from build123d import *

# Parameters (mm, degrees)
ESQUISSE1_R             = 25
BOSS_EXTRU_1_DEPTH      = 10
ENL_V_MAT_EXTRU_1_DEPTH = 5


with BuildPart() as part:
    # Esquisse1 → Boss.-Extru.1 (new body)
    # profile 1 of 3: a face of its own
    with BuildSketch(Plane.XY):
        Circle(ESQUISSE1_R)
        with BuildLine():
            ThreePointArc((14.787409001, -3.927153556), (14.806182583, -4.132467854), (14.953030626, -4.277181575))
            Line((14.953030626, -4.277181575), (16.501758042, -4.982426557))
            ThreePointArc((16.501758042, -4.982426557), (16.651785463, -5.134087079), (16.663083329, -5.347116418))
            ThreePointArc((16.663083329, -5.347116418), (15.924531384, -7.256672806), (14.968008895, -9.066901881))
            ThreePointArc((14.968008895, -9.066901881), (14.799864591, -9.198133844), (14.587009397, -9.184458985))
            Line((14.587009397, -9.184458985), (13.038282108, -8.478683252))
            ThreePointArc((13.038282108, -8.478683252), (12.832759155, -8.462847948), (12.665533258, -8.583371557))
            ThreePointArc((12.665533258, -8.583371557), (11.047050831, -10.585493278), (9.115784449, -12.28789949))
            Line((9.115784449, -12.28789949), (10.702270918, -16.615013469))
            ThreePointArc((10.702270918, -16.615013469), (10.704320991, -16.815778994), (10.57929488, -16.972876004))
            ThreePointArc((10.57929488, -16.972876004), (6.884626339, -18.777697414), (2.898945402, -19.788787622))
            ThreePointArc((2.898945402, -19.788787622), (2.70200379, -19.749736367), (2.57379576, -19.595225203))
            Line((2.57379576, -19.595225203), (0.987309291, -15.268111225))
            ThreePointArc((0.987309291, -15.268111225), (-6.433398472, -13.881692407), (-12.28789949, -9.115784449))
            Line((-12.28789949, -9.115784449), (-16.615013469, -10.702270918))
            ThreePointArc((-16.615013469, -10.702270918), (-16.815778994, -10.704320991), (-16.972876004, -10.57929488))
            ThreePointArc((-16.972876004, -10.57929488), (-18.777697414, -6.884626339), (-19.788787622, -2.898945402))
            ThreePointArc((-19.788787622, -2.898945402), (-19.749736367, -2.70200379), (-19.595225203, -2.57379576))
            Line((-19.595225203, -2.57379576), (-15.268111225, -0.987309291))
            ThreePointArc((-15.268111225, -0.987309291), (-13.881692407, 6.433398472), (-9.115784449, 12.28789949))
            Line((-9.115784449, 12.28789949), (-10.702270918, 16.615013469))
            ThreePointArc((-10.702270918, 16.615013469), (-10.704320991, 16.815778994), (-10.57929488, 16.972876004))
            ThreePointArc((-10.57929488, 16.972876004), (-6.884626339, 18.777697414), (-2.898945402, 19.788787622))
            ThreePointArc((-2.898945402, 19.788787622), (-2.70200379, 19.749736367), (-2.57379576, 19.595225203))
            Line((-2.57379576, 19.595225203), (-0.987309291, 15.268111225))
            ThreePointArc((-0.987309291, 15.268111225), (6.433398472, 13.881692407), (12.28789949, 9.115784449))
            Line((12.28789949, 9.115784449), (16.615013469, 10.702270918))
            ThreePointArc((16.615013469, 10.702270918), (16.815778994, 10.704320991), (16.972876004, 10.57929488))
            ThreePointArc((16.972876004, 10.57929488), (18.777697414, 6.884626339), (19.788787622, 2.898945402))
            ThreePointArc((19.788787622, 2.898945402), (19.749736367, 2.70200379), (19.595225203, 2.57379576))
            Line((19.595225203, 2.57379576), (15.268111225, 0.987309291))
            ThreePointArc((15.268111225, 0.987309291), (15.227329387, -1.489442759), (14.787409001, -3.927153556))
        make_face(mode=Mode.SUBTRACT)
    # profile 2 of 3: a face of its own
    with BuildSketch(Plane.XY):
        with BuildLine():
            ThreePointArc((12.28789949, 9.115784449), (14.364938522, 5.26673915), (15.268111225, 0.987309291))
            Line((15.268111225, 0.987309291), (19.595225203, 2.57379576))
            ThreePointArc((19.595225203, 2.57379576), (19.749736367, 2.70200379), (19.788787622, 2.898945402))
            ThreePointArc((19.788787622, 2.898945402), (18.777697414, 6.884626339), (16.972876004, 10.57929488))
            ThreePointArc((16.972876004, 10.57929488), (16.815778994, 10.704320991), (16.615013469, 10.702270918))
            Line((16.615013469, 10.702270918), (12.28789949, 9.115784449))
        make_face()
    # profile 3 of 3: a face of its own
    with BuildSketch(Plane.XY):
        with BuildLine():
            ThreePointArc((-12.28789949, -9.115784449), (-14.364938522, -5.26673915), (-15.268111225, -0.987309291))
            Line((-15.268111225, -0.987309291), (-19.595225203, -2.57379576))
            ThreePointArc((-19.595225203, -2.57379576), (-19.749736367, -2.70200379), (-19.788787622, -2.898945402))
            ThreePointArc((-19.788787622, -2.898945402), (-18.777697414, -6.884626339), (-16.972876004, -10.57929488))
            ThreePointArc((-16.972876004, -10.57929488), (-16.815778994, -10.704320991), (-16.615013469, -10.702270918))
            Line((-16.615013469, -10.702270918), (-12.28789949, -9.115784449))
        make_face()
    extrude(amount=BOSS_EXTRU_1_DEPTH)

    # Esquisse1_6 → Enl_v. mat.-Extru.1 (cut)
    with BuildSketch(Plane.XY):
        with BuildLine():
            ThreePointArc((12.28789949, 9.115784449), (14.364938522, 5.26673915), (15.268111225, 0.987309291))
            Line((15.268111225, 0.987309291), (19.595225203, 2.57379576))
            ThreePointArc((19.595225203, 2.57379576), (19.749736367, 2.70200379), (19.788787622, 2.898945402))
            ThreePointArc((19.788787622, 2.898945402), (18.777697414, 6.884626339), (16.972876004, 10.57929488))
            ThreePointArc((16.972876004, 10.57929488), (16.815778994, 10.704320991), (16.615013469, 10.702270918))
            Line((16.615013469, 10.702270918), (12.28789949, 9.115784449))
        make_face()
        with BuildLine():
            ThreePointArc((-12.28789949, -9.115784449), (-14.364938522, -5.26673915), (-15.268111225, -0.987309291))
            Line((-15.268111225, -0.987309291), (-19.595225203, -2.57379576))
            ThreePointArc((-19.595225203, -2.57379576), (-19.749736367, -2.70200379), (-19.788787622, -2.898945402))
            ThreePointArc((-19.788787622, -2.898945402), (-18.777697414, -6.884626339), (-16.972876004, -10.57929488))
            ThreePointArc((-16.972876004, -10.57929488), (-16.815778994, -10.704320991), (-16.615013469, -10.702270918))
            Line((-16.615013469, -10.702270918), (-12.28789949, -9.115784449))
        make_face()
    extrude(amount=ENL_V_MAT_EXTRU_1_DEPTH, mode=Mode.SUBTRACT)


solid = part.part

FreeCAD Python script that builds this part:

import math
import FreeCAD as App
import Part
import Sketcher

doc = App.newDocument("Part")
body = doc.addObject("PartDesign::Body", "Body")

# Sketch on XY plane
sketch1 = body.newObject("Sketcher::SketchObject", "Sketch")
sketch1.AttachmentSupport = (doc.getObject("XY_Plane"), [""])
sketch1.MapMode = "FlatFace"
sketch1.addGeometry([
    Part.Circle(App.Vector(0, 0, 0), App.Vector(0, 0, 1), 25),  # 0
    Part.ArcOfCircle(Part.Circle(App.Vector(0, 0, 0), App.Vector(0, 0, 1), 15.3), math.radians(-14.87), math.radians(3.7)),  # 1
    Part.ArcOfCircle(Part.Circle(App.Vector(15.08, -4, 0), App.Vector(0, 0, 1), 0.3), math.radians(165), math.radians(246)),  # 2
    Part.LineSegment(App.Vector(14.95, -4.28, 0), App.Vector(16.5, -4.98, 0)),  # 3
    Part.ArcOfCircle(Part.Circle(App.Vector(16.38, -5.26, 0), App.Vector(0, 0, 1), 0.3), math.radians(-18), math.radians(66)),  # 4
    Part.ArcOfCircle(Part.Circle(App.Vector(0, 0, 0), App.Vector(0, 0, 1), 17.5), math.radians(-31.21), math.radians(-17.79)),  # 5
    Part.ArcOfCircle(Part.Circle(App.Vector(14.71, -8.91, 0), App.Vector(0, 0, 1), 0.3), math.radians(-114), math.radians(-31)),  # 6
    Part.LineSegment(App.Vector(14.59, -9.18, 0), App.Vector(13.04, -8.48, 0)),  # 7
    Part.ArcOfCircle(Part.Circle(App.Vector(12.91, -8.75, 0), App.Vector(0, 0, 1), 0.3), math.radians(66), math.radians(146)),  # 8
    Part.ArcOfCircle(Part.Circle(App.Vector(0, 0, 0), App.Vector(0, 0, 1), 15.3), math.radians(-53.43), math.radians(-34.13)),  # 9
    Part.LineSegment(App.Vector(9.12, -12.29, 0), App.Vector(10.7, -16.62, 0)),  # 10
    Part.ArcOfCircle(Part.Circle(App.Vector(10.42, -16.72, 0), App.Vector(0, 0, 1), 0.3), math.radians(-58), math.radians(20)),  # 11
    Part.ArcOfCircle(Part.Circle(App.Vector(0, 0, 0), App.Vector(0, 0, 1), 20), math.radians(-82), math.radians(-58)),  # 12
    Part.ArcOfCircle(Part.Circle(App.Vector(2.86, -19.49, 0), App.Vector(0, 0, 1), 0.3), math.radians(-160), math.radians(-82)),  # 13
    Part.LineSegment(App.Vector(2.57, -19.6, 0), App.Vector(0.99, -15.27, 0)),  # 14
    Part.ArcOfCircle(Part.Circle(App.Vector(0, 0, 0), App.Vector(0, 0, 1), 15.3), math.radians(-143), math.radians(-86)),  # 15
    Part.ArcOfCircle(Part.Circle(App.Vector(0, 0, 0), App.Vector(0, 0, 1), 15.3), math.radians(-176), math.radians(-143)),  # 16
    Part.ArcOfCircle(Part.Circle(App.Vector(0, 0, 0), App.Vector(0, 0, 1), 15.3), math.radians(127), math.radians(184)),  # 17
    Part.LineSegment(App.Vector(-9.12, 12.29, 0), App.Vector(-10.7, 16.62, 0)),  # 18
    Part.ArcOfCircle(Part.Circle(App.Vector(-10.42, 16.72, 0), App.Vector(0, 0, 1), 0.3), math.radians(122), math.radians(200)),  # 19
    Part.ArcOfCircle(Part.Circle(App.Vector(0, 0, 0), App.Vector(0, 0, 1), 20), math.radians(98), math.radians(122)),  # 20
    Part.ArcOfCircle(Part.Circle(App.Vector(-2.86, 19.49, 0), App.Vector(0, 0, 1), 0.3), math.radians(20), math.radians(98)),  # 21
    Part.LineSegment(App.Vector(-2.57, 19.6, 0), App.Vector(-0.99, 15.27, 0)),  # 22
    Part.ArcOfCircle(Part.Circle(App.Vector(0, 0, 0), App.Vector(0, 0, 1), 15.3), math.radians(37), math.radians(94)),  # 23
    Part.ArcOfCircle(Part.Circle(App.Vector(0, 0, 0), App.Vector(0, 0, 1), 15.3), math.radians(4), math.radians(37)),  # 24
], False)
sketch1.addConstraint([
    Sketcher.Constraint("Tangent", 1, 1, 2, 1),
    Sketcher.Constraint("Tangent", 2, 2, 3, 1),
    Sketcher.Constraint("Tangent", 3, 2, 4, 2),
    Sketcher.Constraint("Tangent", 4, 1, 5, 2),
    Sketcher.Constraint("Tangent", 5, 1, 6, 2),
    Sketcher.Constraint("Tangent", 6, 1, 7, 1),
    Sketcher.Constraint("Tangent", 7, 2, 8, 1),
    Sketcher.Constraint("Tangent", 8, 2, 9, 2),
    Sketcher.Constraint("Coincident", 9, 1, 10, 1),
    Sketcher.Constraint("Tangent", 10, 2, 11, 2),
    Sketcher.Constraint("Tangent", 11, 1, 12, 2),
    Sketcher.Constraint("Tangent", 12, 1, 13, 2),
    Sketcher.Constraint("Tangent", 13, 1, 14, 1),
    Sketcher.Constraint("Coincident", 14, 2, 15, 2),
    Sketcher.Constraint("Tangent", 15, 1, 16, 2),
    Sketcher.Constraint("Tangent", 16, 1, 17, 2),
    Sketcher.Constraint("Coincident", 17, 1, 18, 1),
    Sketcher.Constraint("Tangent", 18, 2, 19, 2),
    Sketcher.Constraint("Tangent", 19, 1, 20, 2),
    Sketcher.Constraint("Tangent", 20, 1, 21, 2),
    Sketcher.Constraint("Tangent", 21, 1, 22, 1),
    Sketcher.Constraint("Coincident", 22, 2, 23, 2),
    Sketcher.Constraint("Tangent", 23, 1, 24, 2),
    Sketcher.Constraint("Tangent", 24, 1, 1, 2),
    Sketcher.Constraint("Coincident", 0, 3, -1, 1),
    Sketcher.Constraint("Coincident", 1, 3, -1, 1),
    Sketcher.Constraint("Coincident", 5, 3, -1, 1),
    Sketcher.Constraint("Coincident", 9, 3, -1, 1),
    Sketcher.Constraint("Coincident", 12, 3, -1, 1),
    Sketcher.Constraint("Coincident", 15, 3, -1, 1),
    Sketcher.Constraint("Coincident", 17, 3, -1, 1),
    Sketcher.Constraint("Coincident", 20, 3, -1, 1),
    Sketcher.Constraint("Coincident", 23, 3, -1, 1),
    Sketcher.Constraint("Equal", 2, 4),
    Sketcher.Constraint("Equal", 4, 6),
    Sketcher.Constraint("Equal", 6, 8),
    Sketcher.Constraint("Equal", 1, 9),
    Sketcher.Constraint("Equal", 8, 11),
    Sketcher.Constraint("Equal", 11, 13),
    Sketcher.Constraint("Equal", 9, 15),
    Sketcher.Constraint("Equal", 13, 19),
    Sketcher.Constraint("Equal", 12, 20),
    Sketcher.Constraint("Equal", 19, 21),
    Sketcher.Constraint("Symmetric", 10, 2, 18, 2, -1, 1),
    Sketcher.Constraint("Symmetric", 13, 1, 21, 1, -1, 1),
    Sketcher.Constraint("Parallel", 10, 14),
    Sketcher.Constraint("Equal", 10, 14),
    Sketcher.Constraint("Diameter", 0, 50.0),
    Sketcher.Constraint("Radius", 12, 20.0),
    Sketcher.Constraint("Radius", 1, 15.3),
    Sketcher.Constraint("Radius", 2, 0.3),
    Sketcher.Constraint("Radius", 5, 17.5),
    Sketcher.Constraint("DistanceX", 6, 1, 5, 1, 0.380999),
    Sketcher.Constraint("DistanceY", 5, 1, -1, 1, 9.066902),
    Sketcher.Constraint("DistanceY", 9, 1, -1, 1, 12.287899),
    Sketcher.Constraint("DistanceX", 15, 1, -1, 1, 12.287899),
    Sketcher.Constraint("DistanceX", -1, 1, 23, 1, 12.287899),
    Sketcher.Constraint("DistanceY", 4, 3, 1, 1, 1.328298),
    Sketcher.Constraint("DistanceX", 2, 2, 4, 3, 1.4244),
    Sketcher.Constraint("DistanceX", 13, 1, 11, 1, 8.005499),
    Sketcher.Constraint("DistanceX", 16, 1, -1, 1, 15.268111),
    Sketcher.Constraint("DistanceX", -1, 1, 24, 1, 15.268111),
])
pad1 = body.newObject("PartDesign::Pad", "Pad")
pad1.Profile = sketch1
pad1.Length = 10

# Sketch on XY plane
sketch2 = body.newObject("Sketcher::SketchObject", "Sketch001")
sketch2.AttachmentSupport = (doc.getObject("XY_Plane"), [""])
sketch2.MapMode = "FlatFace"
sketch2.addGeometry([
    Part.ArcOfCircle(Part.Circle(App.Vector(0, 0, 0), App.Vector(0, 0, 1), 15.3), math.radians(4), math.radians(37)),  # 0
    Part.LineSegment(App.Vector(15.27, 0.99, 0), App.Vector(19.6, 2.57, 0)),  # 1
    Part.ArcOfCircle(Part.Circle(App.Vector(19.49, 2.86, 0), App.Vector(0, 0, 1), 0.3), math.radians(-70), math.radians(8)),  # 2
    Part.ArcOfCircle(Part.Circle(App.Vector(0, 0, 0), App.Vector(0, 0, 1), 20), math.radians(8), math.radians(32)),  # 3
    Part.ArcOfCircle(Part.Circle(App.Vector(16.72, 10.42, 0), App.Vector(0, 0, 1), 0.3), math.radians(32), math.radians(110)),  # 4
    Part.LineSegment(App.Vector(16.62, 10.7, 0), App.Vector(12.29, 9.12, 0)),  # 5
    Part.ArcOfCircle(Part.Circle(App.Vector(0, 0, 0), App.Vector(0, 0, 1), 15.3), math.radians(-176), math.radians(-143)),  # 6
    Part.LineSegment(App.Vector(-15.27, -0.99, 0), App.Vector(-19.6, -2.57, 0)),  # 7
    Part.ArcOfCircle(Part.Circle(App.Vector(-19.49, -2.86, 0), App.Vector(0, 0, 1), 0.3), math.radians(110), math.radians(188)),  # 8
    Part.ArcOfCircle(Part.Circle(App.Vector(0, 0, 0), App.Vector(0, 0, 1), 20), math.radians(-172), math.radians(-148)),  # 9
    Part.ArcOfCircle(Part.Circle(App.Vector(-16.72, -10.42, 0), App.Vector(0, 0, 1), 0.3), math.radians(-148), math.radians(-70)),  # 10
    Part.LineSegment(App.Vector(-16.62, -10.7, 0), App.Vector(-12.29, -9.12, 0)),  # 11
], False)
sketch2.addConstraint([
    Sketcher.Constraint("Coincident", 0, 1, 1, 1),
    Sketcher.Constraint("Tangent", 1, 2, 2, 1),
    Sketcher.Constraint("Tangent", 2, 2, 3, 1),
    Sketcher.Constraint("Tangent", 3, 2, 4, 1),
    Sketcher.Constraint("Tangent", 4, 2, 5, 1),
    Sketcher.Constraint("Coincident", 5, 2, 0, 2),
    Sketcher.Constraint("Coincident", 6, 1, 7, 1),
    Sketcher.Constraint("Tangent", 7, 2, 8, 1),
    Sketcher.Constraint("Tangent", 8, 2, 9, 1),
    Sketcher.Constraint("Tangent", 9, 2, 10, 1),
    Sketcher.Constraint("Tangent", 10, 2, 11, 1),
    Sketcher.Constraint("Coincident", 11, 2, 6, 2),
    Sketcher.Constraint("Coincident", 0, 3, -1, 1),
    Sketcher.Constraint("Coincident", 3, 3, -1, 1),
    Sketcher.Constraint("Coincident", 6, 3, -1, 1),
    Sketcher.Constraint("Coincident", 9, 3, -1, 1),
    Sketcher.Constraint("Equal", 2, 4),
    Sketcher.Constraint("Equal", 0, 6),
    Sketcher.Constraint("Equal", 4, 8),
    Sketcher.Constraint("Equal", 3, 9),
    Sketcher.Constraint("Equal", 8, 10),
    Sketcher.Constraint("Symmetric", 1, 2, 7, 2, -1, 1),
    Sketcher.Constraint("Symmetric", 4, 2, 10, 2, -1, 1),
    Sketcher.Constraint("Parallel", 1, 5),
    Sketcher.Constraint("Equal", 1, 5),
    Sketcher.Constraint("Radius", 3, 20.0),
    Sketcher.Constraint("Radius", 0, 15.3),
    Sketcher.Constraint("Radius", 2, 0.3),
    Sketcher.Constraint("DistanceX", -1, 1, 5, 2, 12.287899),
    Sketcher.Constraint("DistanceY", 1, 2, 3, 2, 8.005499),
])
pocket1 = body.newObject("PartDesign::Pocket", "Pocket")
pocket1.Profile = sketch2
pocket1.Length = 5
pocket1.Reversed = True

doc.recompute()
